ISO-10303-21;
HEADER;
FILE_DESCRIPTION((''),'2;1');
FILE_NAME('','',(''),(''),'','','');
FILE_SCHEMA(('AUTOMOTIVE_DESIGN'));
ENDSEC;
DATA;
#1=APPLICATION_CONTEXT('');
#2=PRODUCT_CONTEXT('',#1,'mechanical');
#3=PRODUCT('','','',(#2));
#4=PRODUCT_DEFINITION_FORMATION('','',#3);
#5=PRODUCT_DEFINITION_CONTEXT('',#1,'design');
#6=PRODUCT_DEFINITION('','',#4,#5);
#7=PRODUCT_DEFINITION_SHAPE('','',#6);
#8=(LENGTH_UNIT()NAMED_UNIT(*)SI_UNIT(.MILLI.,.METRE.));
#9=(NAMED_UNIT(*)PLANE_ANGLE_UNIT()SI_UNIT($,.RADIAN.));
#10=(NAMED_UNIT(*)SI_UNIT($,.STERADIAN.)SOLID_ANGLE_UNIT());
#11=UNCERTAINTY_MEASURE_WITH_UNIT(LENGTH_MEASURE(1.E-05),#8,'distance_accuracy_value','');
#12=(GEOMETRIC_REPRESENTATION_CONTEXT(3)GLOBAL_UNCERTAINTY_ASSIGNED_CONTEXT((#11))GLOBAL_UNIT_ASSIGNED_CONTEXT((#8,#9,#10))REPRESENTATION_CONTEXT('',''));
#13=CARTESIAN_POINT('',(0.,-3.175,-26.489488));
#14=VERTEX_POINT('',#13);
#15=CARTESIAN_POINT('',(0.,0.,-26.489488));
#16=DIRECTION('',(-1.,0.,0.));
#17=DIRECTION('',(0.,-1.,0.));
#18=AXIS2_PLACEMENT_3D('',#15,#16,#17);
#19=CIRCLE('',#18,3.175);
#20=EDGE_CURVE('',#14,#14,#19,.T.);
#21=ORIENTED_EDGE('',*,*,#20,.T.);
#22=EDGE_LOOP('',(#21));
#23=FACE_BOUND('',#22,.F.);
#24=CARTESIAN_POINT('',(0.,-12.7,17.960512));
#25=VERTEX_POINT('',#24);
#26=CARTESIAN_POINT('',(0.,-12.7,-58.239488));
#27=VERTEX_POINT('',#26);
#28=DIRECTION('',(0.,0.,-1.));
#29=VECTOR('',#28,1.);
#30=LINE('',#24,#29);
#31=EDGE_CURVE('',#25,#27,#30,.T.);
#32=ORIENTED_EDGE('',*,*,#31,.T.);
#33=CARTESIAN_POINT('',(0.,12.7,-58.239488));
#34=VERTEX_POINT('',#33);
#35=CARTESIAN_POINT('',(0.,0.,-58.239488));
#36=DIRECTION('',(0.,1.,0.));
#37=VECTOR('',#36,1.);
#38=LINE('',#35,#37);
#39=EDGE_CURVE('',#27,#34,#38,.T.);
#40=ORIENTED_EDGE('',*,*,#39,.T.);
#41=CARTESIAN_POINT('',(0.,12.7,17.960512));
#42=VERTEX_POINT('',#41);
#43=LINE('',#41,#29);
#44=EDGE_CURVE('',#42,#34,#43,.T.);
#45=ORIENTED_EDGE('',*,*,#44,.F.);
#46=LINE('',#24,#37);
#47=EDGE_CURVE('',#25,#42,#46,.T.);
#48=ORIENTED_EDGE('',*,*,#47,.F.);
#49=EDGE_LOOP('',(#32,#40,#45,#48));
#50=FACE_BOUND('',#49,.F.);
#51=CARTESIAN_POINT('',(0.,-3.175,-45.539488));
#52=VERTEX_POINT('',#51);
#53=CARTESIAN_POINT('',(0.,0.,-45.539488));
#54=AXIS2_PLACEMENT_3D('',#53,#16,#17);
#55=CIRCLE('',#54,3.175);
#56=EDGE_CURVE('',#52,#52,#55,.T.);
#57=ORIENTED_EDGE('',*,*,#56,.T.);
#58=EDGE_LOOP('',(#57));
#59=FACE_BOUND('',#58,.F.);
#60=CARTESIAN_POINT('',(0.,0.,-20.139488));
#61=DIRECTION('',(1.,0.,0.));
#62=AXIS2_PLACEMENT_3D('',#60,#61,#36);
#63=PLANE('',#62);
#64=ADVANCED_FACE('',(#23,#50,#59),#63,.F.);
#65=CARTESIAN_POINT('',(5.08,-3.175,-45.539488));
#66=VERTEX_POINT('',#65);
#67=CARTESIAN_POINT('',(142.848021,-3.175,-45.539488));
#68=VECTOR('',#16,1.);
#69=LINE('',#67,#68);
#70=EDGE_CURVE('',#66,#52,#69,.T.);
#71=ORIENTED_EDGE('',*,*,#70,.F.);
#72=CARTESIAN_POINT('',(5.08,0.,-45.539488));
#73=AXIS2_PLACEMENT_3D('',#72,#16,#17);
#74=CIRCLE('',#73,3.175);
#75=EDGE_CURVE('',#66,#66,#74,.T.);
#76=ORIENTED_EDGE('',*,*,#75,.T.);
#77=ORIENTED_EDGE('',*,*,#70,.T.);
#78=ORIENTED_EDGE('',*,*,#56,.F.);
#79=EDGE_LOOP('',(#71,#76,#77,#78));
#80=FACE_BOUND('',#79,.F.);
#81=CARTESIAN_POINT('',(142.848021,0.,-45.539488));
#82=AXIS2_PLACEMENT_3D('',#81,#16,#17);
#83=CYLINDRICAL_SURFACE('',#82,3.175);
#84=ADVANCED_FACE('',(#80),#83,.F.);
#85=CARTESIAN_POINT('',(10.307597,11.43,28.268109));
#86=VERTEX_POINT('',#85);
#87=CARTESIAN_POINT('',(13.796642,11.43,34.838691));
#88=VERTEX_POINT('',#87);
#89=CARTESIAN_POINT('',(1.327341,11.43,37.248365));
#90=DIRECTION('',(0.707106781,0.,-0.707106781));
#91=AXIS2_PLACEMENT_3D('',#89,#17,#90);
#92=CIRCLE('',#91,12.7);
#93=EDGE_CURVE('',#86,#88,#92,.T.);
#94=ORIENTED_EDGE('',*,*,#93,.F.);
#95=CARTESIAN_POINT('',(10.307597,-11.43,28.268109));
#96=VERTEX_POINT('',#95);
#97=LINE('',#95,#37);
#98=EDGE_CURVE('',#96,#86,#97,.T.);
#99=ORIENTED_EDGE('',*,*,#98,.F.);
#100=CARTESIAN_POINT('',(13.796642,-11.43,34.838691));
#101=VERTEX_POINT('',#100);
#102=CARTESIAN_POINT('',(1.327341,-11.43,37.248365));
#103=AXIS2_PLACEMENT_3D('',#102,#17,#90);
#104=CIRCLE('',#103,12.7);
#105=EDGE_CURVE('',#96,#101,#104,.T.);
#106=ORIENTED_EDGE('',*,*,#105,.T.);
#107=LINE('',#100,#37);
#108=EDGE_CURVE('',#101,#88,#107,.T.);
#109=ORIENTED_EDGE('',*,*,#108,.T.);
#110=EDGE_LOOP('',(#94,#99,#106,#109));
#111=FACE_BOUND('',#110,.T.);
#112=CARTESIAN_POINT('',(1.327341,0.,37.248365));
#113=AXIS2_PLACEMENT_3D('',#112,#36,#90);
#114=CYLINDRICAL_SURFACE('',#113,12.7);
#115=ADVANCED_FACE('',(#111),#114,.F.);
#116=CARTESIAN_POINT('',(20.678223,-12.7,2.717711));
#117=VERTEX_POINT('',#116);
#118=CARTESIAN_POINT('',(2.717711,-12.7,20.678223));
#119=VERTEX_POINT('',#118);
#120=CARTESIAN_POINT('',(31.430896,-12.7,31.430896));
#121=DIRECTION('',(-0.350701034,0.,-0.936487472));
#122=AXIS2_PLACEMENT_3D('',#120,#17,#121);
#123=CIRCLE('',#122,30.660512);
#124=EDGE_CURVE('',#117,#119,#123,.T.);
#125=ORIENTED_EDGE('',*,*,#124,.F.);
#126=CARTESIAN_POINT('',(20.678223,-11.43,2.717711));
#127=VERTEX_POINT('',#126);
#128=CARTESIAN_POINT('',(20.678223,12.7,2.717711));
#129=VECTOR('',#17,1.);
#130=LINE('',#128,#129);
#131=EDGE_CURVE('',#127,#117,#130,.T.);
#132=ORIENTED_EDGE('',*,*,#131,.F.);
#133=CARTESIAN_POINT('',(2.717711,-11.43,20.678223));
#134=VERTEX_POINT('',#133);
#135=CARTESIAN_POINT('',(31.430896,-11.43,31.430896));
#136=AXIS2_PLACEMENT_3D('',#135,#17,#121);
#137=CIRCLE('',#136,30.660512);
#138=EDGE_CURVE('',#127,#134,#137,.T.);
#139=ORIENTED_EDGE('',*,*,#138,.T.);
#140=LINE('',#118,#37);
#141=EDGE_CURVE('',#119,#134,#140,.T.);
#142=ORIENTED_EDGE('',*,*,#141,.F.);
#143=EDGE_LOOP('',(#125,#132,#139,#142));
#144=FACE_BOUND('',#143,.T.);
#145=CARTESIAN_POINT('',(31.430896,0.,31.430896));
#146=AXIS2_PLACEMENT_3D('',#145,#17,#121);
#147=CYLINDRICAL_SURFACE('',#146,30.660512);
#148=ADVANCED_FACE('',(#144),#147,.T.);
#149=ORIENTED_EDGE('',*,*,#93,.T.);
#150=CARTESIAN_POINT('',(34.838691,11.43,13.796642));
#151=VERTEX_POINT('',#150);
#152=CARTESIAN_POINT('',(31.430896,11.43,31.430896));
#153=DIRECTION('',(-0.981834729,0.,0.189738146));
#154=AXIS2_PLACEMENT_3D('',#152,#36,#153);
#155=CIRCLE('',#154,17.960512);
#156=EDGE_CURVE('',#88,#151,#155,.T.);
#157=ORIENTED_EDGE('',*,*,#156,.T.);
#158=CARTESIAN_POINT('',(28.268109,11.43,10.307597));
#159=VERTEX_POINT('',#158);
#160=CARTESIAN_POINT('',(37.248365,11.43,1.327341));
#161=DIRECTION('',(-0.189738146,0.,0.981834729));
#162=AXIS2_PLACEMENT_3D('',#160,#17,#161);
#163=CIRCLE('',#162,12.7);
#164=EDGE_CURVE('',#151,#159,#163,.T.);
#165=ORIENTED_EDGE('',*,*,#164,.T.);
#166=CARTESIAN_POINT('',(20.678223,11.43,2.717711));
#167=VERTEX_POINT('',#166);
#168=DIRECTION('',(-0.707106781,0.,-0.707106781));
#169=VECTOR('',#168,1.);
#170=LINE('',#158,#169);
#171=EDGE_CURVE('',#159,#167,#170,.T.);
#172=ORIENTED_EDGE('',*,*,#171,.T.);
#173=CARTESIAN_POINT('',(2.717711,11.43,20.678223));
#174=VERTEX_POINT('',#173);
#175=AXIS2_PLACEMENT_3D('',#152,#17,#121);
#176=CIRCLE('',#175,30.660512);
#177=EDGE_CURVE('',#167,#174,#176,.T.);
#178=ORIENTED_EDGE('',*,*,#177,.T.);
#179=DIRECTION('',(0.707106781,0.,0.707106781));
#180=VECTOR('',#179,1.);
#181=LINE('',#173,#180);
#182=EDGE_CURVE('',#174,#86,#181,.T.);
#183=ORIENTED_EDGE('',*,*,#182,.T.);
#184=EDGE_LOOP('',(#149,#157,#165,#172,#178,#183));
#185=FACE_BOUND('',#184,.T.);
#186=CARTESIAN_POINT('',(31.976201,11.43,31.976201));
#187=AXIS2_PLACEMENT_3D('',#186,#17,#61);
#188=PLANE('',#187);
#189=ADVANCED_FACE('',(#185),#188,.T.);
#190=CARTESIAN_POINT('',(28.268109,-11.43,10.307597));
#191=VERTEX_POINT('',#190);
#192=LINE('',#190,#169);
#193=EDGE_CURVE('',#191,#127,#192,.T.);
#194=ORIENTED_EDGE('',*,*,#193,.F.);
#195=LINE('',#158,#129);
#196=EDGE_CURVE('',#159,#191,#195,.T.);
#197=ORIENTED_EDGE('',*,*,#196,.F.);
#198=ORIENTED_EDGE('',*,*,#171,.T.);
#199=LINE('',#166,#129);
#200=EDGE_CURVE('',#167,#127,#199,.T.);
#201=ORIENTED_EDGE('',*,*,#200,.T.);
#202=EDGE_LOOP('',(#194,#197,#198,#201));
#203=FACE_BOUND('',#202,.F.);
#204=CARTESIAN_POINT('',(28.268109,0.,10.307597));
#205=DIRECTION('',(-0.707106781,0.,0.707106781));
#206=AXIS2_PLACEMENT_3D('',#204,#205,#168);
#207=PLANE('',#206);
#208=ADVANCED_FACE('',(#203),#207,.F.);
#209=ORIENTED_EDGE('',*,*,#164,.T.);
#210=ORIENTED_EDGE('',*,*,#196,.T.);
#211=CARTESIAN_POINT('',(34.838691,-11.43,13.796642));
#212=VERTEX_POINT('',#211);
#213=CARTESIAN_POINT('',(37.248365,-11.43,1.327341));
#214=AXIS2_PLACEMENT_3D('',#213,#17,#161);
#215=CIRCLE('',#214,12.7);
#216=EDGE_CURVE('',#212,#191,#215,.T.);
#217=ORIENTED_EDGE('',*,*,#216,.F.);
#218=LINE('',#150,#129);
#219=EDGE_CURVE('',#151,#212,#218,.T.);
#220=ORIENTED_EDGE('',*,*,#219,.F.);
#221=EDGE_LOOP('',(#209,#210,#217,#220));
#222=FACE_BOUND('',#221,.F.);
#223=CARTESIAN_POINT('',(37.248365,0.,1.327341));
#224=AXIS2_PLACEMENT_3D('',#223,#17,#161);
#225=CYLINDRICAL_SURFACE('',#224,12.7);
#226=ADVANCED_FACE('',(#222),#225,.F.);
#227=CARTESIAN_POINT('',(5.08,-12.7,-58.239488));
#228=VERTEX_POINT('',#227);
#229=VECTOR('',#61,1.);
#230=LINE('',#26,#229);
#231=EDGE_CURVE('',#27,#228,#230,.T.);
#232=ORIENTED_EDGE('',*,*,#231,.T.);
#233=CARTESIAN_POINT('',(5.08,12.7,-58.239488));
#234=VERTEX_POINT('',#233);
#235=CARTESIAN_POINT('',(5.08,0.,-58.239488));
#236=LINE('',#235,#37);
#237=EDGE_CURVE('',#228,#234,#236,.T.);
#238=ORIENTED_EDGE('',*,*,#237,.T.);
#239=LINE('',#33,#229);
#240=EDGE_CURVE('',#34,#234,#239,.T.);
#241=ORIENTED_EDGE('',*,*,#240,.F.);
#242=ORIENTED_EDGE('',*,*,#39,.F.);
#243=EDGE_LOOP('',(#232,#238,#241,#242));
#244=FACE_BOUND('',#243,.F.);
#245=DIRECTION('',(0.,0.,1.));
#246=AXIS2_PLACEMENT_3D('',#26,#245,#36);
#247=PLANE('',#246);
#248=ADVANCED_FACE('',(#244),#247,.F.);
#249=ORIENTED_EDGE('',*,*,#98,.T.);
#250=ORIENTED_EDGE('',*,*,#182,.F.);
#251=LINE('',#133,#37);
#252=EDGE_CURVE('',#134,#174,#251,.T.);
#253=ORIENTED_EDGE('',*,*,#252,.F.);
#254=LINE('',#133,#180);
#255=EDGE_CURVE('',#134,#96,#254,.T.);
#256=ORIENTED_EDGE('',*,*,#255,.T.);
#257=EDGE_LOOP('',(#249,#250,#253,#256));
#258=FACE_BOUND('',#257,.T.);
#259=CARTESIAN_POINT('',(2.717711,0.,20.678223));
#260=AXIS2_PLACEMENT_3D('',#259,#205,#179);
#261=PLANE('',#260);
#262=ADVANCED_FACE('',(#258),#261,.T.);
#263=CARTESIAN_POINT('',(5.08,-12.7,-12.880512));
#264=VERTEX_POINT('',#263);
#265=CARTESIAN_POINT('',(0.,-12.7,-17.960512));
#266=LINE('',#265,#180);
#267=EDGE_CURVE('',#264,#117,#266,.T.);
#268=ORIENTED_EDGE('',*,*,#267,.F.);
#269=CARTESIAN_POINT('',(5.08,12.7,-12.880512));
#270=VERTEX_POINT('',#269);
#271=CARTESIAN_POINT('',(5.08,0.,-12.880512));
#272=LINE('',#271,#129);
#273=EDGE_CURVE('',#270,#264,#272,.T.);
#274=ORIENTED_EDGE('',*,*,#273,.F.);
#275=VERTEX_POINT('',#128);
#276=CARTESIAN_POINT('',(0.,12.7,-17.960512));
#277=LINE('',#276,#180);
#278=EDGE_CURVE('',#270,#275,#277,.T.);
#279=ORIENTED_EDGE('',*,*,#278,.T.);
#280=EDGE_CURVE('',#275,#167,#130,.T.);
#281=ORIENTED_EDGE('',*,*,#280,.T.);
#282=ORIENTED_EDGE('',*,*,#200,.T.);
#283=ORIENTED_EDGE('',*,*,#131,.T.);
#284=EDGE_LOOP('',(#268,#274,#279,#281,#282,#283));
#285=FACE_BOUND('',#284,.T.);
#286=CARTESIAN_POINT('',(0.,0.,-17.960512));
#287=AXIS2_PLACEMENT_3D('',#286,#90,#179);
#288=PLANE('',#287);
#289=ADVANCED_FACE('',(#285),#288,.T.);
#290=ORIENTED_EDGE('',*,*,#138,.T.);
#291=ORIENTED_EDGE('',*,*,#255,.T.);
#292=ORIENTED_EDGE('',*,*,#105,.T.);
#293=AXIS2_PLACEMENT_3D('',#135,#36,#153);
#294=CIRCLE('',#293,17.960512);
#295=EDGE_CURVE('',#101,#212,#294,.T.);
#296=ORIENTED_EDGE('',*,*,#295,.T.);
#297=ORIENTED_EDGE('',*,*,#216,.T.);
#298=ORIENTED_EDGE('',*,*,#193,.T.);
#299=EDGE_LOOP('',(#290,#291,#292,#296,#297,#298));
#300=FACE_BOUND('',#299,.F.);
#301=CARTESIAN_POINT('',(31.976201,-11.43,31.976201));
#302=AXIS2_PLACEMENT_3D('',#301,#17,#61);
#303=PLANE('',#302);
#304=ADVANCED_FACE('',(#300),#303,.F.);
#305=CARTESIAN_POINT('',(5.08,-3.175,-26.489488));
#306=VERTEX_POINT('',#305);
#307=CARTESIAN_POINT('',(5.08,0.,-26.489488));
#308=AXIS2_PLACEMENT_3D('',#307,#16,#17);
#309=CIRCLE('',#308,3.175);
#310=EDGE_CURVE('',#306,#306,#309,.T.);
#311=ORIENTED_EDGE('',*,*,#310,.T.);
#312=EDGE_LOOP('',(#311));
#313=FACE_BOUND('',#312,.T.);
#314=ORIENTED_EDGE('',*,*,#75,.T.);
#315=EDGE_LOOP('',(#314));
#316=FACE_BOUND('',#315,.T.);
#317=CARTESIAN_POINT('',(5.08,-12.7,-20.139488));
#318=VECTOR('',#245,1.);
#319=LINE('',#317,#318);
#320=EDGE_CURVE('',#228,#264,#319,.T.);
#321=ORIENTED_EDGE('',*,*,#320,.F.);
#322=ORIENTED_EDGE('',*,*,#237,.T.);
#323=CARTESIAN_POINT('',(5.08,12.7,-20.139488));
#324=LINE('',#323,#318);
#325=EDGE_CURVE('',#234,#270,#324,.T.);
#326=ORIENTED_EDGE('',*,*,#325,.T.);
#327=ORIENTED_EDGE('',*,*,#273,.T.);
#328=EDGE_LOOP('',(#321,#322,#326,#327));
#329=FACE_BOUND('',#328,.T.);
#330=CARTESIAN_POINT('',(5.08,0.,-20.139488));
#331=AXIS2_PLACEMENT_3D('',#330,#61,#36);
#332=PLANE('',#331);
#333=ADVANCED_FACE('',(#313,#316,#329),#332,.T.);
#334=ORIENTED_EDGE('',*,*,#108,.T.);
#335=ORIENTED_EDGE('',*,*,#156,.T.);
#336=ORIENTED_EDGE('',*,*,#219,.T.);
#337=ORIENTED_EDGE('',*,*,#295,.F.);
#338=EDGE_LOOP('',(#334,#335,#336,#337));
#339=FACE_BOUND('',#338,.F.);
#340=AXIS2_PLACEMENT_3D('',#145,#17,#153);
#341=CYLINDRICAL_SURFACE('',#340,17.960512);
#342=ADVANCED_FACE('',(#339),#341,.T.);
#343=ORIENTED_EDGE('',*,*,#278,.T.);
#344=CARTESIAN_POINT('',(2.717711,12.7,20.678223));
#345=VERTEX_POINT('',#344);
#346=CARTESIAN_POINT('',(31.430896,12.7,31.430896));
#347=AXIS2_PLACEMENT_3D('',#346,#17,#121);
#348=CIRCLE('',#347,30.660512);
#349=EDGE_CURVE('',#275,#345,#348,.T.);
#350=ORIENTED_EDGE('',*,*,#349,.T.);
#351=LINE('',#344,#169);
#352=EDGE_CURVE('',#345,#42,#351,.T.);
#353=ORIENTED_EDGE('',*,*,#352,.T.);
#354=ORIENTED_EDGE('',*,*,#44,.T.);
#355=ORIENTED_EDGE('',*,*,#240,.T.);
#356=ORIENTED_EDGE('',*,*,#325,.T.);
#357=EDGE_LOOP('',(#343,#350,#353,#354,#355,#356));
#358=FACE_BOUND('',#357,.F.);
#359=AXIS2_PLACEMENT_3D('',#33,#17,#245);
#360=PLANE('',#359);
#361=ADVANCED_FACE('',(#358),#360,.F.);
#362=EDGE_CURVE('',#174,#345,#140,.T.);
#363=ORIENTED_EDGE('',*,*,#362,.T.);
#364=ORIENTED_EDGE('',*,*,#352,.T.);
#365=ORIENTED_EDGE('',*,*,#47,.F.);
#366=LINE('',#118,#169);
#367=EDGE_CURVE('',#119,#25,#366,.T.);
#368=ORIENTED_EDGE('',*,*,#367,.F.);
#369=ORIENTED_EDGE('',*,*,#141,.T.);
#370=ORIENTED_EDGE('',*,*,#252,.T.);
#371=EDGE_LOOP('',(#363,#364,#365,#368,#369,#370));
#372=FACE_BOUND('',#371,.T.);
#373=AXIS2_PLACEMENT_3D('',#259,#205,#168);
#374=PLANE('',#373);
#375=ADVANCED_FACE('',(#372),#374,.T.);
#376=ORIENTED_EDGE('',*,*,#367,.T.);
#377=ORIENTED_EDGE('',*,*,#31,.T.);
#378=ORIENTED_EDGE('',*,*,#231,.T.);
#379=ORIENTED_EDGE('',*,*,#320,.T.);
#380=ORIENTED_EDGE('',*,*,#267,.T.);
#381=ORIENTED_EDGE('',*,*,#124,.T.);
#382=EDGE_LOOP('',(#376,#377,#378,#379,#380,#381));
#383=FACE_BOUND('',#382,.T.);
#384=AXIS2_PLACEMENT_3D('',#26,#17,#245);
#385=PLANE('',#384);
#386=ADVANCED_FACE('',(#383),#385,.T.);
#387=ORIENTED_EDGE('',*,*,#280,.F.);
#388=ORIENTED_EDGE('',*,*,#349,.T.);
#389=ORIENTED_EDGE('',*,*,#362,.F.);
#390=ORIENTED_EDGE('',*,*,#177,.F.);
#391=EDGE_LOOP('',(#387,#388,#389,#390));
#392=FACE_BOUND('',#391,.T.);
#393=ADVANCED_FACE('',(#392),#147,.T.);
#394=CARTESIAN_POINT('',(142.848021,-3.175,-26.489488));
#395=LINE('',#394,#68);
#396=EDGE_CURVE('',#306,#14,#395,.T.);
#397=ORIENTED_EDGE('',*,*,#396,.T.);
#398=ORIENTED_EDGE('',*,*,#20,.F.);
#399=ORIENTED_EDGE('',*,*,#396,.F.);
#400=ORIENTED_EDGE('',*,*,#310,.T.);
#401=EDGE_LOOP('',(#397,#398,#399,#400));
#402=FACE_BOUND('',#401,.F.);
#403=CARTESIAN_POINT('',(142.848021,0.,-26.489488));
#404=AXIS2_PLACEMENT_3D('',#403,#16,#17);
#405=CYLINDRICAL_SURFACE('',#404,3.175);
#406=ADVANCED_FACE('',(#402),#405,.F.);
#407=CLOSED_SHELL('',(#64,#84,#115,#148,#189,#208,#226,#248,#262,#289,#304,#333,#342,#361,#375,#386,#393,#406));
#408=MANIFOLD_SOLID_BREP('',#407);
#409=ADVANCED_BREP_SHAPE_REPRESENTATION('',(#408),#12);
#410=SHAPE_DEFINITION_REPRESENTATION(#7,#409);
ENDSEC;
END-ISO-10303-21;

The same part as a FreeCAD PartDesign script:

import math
import FreeCAD as App
import Part
import Sketcher

V = App.Vector
Q = App.Units.Quantity


def add_polygon(sketch, points):
    """Adds a closed chain of lines whose ends are joined by coincident constraints."""
    first, n = sketch.GeometryCount, len(points)
    for a, b in zip(points, points[1:] + points[:1]):
        sketch.addGeometry(Part.LineSegment(App.Vector(*a, 0), App.Vector(*b, 0)), False)
    for i in range(n):
        sketch.addConstraint(Sketcher.Constraint("Coincident", first + i, 2, first + (i + 1) % n, 1))

doc = App.newDocument("Part")
body = doc.addObject("PartDesign::Body", "Body")

# Sketch on XZ plane
sketch1 = body.newObject("Sketcher::SketchObject", "Sketch")
sketch1.AttachmentSupport = (doc.getObject("XZ_Plane"), [""])
sketch1.MapMode = "FlatFace"
sketch1.addGeometry([
    Part.LineSegment(V(0, 18, 0), V(0, -18, 0)),
    Part.LineSegment(V(0, -18, 0), V(20.7, 2.7, 0)),
    Part.ArcOfCircle(Part.Circle(V(31.4, 31.4, 0), V(0, 0, 1), 30.7), math.radians(-111), math.radians(201)),
    Part.LineSegment(V(2.7, 20.7, 0), V(0, 18, 0)),
], False)
sketch1.addConstraint([
    Sketcher.Constraint("Coincident", 0, 2, 1, 1),
    Sketcher.Constraint("Coincident", 1, 2, 2, 1),
    Sketcher.Constraint("Coincident", 2, 2, 3, 1),
    Sketcher.Constraint("Coincident", 3, 2, 0, 1),
    Sketcher.Constraint("Vertical", 0),
    Sketcher.Constraint("Symmetric", 0, 2, 3, 2, -1, 1),
    Sketcher.Constraint("Parallel", 1, 3),
    Sketcher.Constraint("Angle", 1, Q("45 deg")),
    Sketcher.Constraint("Radius", 2, 30.660512),
    Sketcher.Constraint("DistanceY", 1, 2, 3, 2, 15.242801),
    Sketcher.Constraint("DistanceY", 0, 2, 0, 1, 35.921024),
    Sketcher.Constraint("DistanceX", -1, 1, 2, 2, 2.717711),
])
pad1 = body.newObject("PartDesign::Pad", "Pad")
pad1.Profile = sketch1
pad1.Type = "TwoLengths"
pad1.Length = Q("0.5 in")
pad1.Length2 = Q("0.5 in")

# Sketch on XZ plane
sketch2 = body.newObject("Sketcher::SketchObject", "Sketch001")
sketch2.AttachmentSupport = (doc.getObject("XZ_Plane"), [""])
sketch2.MapMode = "FlatFace"
sketch2.addGeometry([
    Part.LineSegment(V(28, 10, 0), V(21, 3, 0)),  # 0
    Part.ArcOfCircle(Part.Circle(V(31, 31, 0), V(0, 0, 1), 31), math.radians(-111), math.radians(201)),  # 1
    Part.LineSegment(V(3, 21, 0), V(10, 28, 0)),  # 2
    Part.ArcOfCircle(Part.Circle(V(1, 37, 0), V(0, 0, 1), 13), math.radians(-45), math.radians(-11)),  # 3
    Part.ArcOfCircle(Part.Circle(V(31, 31, 0), V(0, 0, 1), 18), math.radians(-79), math.radians(169)),  # 4
    Part.ArcOfCircle(Part.Circle(V(37, 1, 0), V(0, 0, 1), 13), math.radians(101), math.radians(135)),  # 5
], False)
sketch2.addConstraint([
    Sketcher.Constraint("Coincident", 0, 2, 1, 1),
    Sketcher.Constraint("Coincident", 1, 2, 2, 1),
    Sketcher.Constraint("Tangent", 2, 2, 3, 1),
    Sketcher.Constraint("Tangent", 3, 2, 4, 2),
    Sketcher.Constraint("Tangent", 4, 1, 5, 1),
    Sketcher.Constraint("Tangent", 5, 2, 0, 1),
    Sketcher.Constraint("Coincident", 4, 3, 1, 3),
    Sketcher.Constraint("Equal", 3, 5),
    Sketcher.Constraint("Parallel", 0, 2),
    Sketcher.Constraint("Equal", 0, 2),
    Sketcher.Constraint("Radius", 3, Q("0.5 in")),
    Sketcher.Constraint("Angle", 0, Q("-135 deg")),
    Sketcher.Constraint("Radius", 1, 30.660512),
    Sketcher.Constraint("Radius", 4, 17.960512),
    Sketcher.Constraint("DistanceX", 2, 2, 1, 3, 21.1233),
    Sketcher.Constraint("DistanceX", -1, 1, 3, 3, 1.327341),
    Sketcher.Constraint("DistanceY", -1, 1, 5, 3, 1.327341),
])
pocket1 = body.newObject("PartDesign::Pocket", "Pocket")
pocket1.Profile = sketch2
pocket1.Type = "TwoLengths"
pocket1.Length = Q("0.45 in")
pocket1.Length2 = Q("0.45 in")

# Sketch on YZ plane
sketch3 = body.newObject("Sketcher::SketchObject", "Sketch002")
sketch3.AttachmentSupport = (doc.getObject("YZ_Plane"), [""])
sketch3.MapMode = "FlatFace"
add_polygon(sketch3, [(-13, 18), (-13, -58), (13, -58), (13, 18)])  # lines 0-3
sketch3.addConstraint([
    Sketcher.Constraint("Vertical", 0),
    Sketcher.Constraint("Horizontal", 1),
    Sketcher.Constraint("Vertical", 2),
    Sketcher.Constraint("Horizontal", 3),
    Sketcher.Constraint("DistanceX", 1, 1, 1, 2, Q("1 in")),
    Sketcher.Constraint("DistanceY", 0, 2, 0, 1, Q("3 in")),
    Sketcher.Constraint("DistanceX", 0, 2, -1, 1, Q("0.5 in")),
    Sketcher.Constraint("DistanceY", 0, 2, -1, 1, 58.239488),
])
pad2 = body.newObject("PartDesign::Pad", "Pad001")
pad2.Profile = sketch3
pad2.Length = Q("0.2 in")

# Sketch on YZ plane
sketch4 = body.newObject("Sketcher::SketchObject", "Sketch003")
sketch4.AttachmentSupport = (doc.getObject("YZ_Plane"), [""])
sketch4.MapMode = "FlatFace"
sketch4.AttachmentOffset = App.Placement(V(0, 0, 0.2 * 25.4), App.Rotation())
sketch4.addGeometry([
    Part.Circle(V(0, -26.5, 0), V(0, 0, 1), 3.2),
    Part.Circle(V(0, -45.5, 0), V(0, 0, 1), 3.2),
], False)
sketch4.addConstraint([
    Sketcher.Constraint("Equal", 0, 1),
    Sketcher.Constraint("PointOnObject", 0, 3, -2),
    Sketcher.Constraint("PointOnObject", 1, 3, -2),
    Sketcher.Constraint("Diameter", 0, Q("0.25 in")),
    Sketcher.Constraint("DistanceY", 1, 3, 0, 3, Q("0.75 in")),
    Sketcher.Constraint("DistanceY", 0, 3, -1, 1, 26.489488),
])
doc.recompute()
hole = body.newObject("PartDesign::Hole", "Hole")
hole.Profile = sketch4
hole.ThreadType = "None"
hole.Diameter = Q("0.25 in")
hole.DepthType = "ThroughAll"

doc.recompute()
